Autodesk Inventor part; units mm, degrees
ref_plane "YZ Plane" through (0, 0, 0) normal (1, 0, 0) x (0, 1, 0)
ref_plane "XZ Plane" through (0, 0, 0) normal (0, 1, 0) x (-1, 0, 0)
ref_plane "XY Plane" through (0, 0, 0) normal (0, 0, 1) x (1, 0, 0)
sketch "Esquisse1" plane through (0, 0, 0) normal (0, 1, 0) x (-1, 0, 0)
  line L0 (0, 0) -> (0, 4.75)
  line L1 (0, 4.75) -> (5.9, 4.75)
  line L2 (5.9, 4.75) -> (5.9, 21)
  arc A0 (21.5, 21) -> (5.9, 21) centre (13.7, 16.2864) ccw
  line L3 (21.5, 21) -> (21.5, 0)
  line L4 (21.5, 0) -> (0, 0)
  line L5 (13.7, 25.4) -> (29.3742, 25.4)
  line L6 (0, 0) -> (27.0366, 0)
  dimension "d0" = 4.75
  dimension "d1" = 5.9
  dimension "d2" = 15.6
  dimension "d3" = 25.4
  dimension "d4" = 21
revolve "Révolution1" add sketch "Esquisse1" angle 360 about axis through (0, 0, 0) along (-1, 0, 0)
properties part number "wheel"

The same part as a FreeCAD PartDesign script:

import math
import FreeCAD as App
import Part
import Sketcher
from FreeCAD import Vector

doc = App.newDocument("Part")
body = doc.addObject("PartDesign::Body", "Body")

sketch1 = doc.addObject("Sketcher::SketchObject", "Sketch")
body.addObject(sketch1)
sketch1.AttachmentSupport = (doc.XZ_Plane, [""])
sketch1.MapMode = "FlatFace"
sketch1.addGeometry([
    Part.LineSegment(Vector(0, 4.8, 0), Vector(0, 0, 0)),
    Part.LineSegment(Vector(0, 0, 0), Vector(-21.5, 0, 0)),
    Part.LineSegment(Vector(-21.5, 0, 0), Vector(-21.5, 21, 0)),
    Part.ArcOfCircle(Part.Circle(Vector(-13.7, 16.3, 0), Vector(0, 0, 1), 9.1), math.radians(31), math.radians(149)),
    Part.LineSegment(Vector(-5.9, 21, 0), Vector(-5.9, 4.8, 0)),
    Part.LineSegment(Vector(-5.9, 4.8, 0), Vector(0, 4.8, 0)),
], False)
sketch1.addConstraint([
    Sketcher.Constraint("Coincident", 0, 2, 1, 1),
    Sketcher.Constraint("Coincident", 1, 2, 2, 1),
    Sketcher.Constraint("Coincident", 2, 2, 3, 2),
    Sketcher.Constraint("Coincident", 3, 1, 4, 1),
    Sketcher.Constraint("Coincident", 4, 2, 5, 1),
    Sketcher.Constraint("Coincident", 5, 2, 0, 1),
    Sketcher.Constraint("Vertical", 0),
    Sketcher.Constraint("Horizontal", 1),
    Sketcher.Constraint("Vertical", 2),
    Sketcher.Constraint("Vertical", 4),
    Sketcher.Constraint("Horizontal", 5),
    Sketcher.Constraint("Coincident", 0, 2, -1, 1),
    Sketcher.Constraint("Horizontal", 2, 2, 3, 1),
    Sketcher.Constraint("DistanceY", 2, 1, 2, 2, 21.0),
    Sketcher.Constraint("DistanceX", 5, 1, 5, 2, 5.9),
    Sketcher.Constraint("DistanceY", 0, 2, 0, 1, 4.75),
    Sketcher.Constraint("DistanceX", 2, 2, 3, 1, 15.6),
    Sketcher.Constraint("Radius", 3, 9.1136),
])
revolution = doc.addObject("PartDesign::Revolution", "Revolution")
body.addObject(revolution)
revolution.Profile = sketch1
revolution.ReferenceAxis = (sketch1, ["H_Axis"])
revolution.Angle = 360

doc.recompute()
